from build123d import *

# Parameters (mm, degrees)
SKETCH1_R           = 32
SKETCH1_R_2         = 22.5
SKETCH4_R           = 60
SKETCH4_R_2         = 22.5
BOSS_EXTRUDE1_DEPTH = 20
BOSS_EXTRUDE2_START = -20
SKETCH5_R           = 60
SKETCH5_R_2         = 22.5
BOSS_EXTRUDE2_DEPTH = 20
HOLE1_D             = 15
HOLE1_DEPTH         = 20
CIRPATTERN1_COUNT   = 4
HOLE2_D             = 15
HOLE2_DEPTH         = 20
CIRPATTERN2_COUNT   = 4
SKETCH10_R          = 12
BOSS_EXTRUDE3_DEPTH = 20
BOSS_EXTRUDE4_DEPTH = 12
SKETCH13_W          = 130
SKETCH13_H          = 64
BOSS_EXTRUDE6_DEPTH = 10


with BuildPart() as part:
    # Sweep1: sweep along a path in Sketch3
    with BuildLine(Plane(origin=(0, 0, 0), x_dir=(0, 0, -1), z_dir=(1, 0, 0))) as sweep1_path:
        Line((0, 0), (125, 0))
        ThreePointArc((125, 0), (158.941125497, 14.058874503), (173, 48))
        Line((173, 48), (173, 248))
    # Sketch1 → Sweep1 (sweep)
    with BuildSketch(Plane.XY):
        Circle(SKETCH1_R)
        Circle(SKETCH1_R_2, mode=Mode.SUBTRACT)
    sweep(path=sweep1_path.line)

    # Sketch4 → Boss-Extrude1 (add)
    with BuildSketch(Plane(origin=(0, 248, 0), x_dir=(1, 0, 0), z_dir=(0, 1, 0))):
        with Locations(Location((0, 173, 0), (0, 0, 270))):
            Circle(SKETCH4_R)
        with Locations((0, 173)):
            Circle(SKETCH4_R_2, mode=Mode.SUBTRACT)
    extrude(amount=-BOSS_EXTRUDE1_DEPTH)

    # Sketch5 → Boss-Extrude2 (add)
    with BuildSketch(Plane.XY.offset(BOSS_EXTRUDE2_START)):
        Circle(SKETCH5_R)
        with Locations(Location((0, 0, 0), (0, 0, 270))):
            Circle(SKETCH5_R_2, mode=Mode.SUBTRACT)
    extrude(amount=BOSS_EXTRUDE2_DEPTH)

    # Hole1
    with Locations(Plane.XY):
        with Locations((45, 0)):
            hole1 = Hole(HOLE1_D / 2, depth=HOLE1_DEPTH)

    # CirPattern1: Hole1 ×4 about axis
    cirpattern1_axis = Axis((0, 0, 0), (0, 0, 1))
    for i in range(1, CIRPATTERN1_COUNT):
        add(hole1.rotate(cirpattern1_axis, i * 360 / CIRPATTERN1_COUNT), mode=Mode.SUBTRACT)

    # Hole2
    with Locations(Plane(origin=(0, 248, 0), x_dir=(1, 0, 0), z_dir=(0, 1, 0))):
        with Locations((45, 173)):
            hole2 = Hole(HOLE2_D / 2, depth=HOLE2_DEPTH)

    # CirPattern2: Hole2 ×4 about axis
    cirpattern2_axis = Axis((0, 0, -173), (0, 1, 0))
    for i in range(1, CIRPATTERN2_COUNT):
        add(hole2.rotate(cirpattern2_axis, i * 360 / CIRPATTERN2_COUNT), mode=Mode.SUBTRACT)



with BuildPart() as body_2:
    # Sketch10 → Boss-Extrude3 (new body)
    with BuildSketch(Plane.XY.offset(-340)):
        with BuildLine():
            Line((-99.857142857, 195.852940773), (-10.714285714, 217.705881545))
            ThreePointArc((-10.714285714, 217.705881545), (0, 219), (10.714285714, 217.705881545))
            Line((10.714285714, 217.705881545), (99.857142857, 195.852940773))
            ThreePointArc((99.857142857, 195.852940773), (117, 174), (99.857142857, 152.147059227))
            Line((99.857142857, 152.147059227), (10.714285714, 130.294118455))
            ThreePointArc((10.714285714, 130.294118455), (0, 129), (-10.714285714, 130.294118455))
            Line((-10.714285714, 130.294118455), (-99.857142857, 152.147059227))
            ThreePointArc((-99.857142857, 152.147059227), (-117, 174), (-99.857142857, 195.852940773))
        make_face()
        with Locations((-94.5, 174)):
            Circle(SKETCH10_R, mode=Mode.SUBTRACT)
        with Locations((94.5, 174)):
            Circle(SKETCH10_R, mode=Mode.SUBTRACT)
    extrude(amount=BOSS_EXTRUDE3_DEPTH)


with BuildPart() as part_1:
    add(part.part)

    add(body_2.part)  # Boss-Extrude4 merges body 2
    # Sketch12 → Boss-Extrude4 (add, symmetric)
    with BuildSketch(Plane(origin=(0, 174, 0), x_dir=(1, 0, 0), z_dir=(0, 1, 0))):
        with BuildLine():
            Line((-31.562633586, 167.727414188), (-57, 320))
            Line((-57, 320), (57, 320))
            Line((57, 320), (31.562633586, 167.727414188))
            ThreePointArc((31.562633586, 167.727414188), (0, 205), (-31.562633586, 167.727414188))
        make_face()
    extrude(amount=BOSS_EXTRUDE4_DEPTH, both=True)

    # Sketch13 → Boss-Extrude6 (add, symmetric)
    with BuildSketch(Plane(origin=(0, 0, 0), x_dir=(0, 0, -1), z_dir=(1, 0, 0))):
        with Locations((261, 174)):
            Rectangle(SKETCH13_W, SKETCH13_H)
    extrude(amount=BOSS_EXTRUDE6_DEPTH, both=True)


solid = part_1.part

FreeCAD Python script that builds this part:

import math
import FreeCAD as App
import Part
import Sketcher

V = App.Vector
Q = App.Units.Quantity


def add_polygon(sketch, points):
    """Adds a closed chain of lines whose ends are joined by coincident constraints."""
    first, n = sketch.GeometryCount, len(points)
    for a, b in zip(points, points[1:] + points[:1]):
        sketch.addGeometry(Part.LineSegment(App.Vector(*a, 0), App.Vector(*b, 0)), False)
    for i in range(n):
        sketch.addConstraint(Sketcher.Constraint("Coincident", first + i, 2, first + (i + 1) % n, 1))

doc = App.newDocument("Part")
body = doc.addObject("PartDesign::Body", "Body")

# Sketch on XY plane
sketch1 = body.newObject("Sketcher::SketchObject", "Sketch")
sketch1.AttachmentSupport = (doc.getObject("XY_Plane"), [""])
sketch1.MapMode = "FlatFace"
sketch1.addGeometry([
    Part.Circle(V(0, 0, 0), V(0, 0, 1), 32),
    Part.Circle(V(0, 0, 0), V(0, 0, 1), 22),
], False)
sketch1.addConstraint([
    Sketcher.Constraint("Coincident", 0, 3, -1, 1),
    Sketcher.Constraint("Coincident", 1, 3, -1, 1),
    Sketcher.Constraint("Diameter", 0, Q("64 mm")),
    Sketcher.Constraint("Diameter", 1, Q("45 mm")),
])

# Sketch on YZ plane
sketch2 = body.newObject("Sketcher::SketchObject", "Sketch001")
sketch2.AttachmentSupport = (doc.getObject("YZ_Plane"), [""])
sketch2.MapMode = "FlatFace"
sketch2.addGeometry([
    Part.LineSegment(V(0, 0, 0), V(0, -125, 0)),
    Part.ArcOfCircle(Part.Circle(V(48, -125, 0), V(0, 0, 1), 48), math.radians(180), math.radians(270)),
    Part.LineSegment(V(48, -173, 0), V(248, -173, 0)),
], False)
sketch2.addConstraint([
    Sketcher.Constraint("Tangent", 0, 2, 1, 1),
    Sketcher.Constraint("Tangent", 1, 2, 2, 1),
    Sketcher.Constraint("Vertical", 0),
    Sketcher.Constraint("Horizontal", 2),
    Sketcher.Constraint("Coincident", 0, 1, -1, 1),
    Sketcher.Constraint("Radius", 1, Q("48 mm")),
    Sketcher.Constraint("DistanceX", 2, 1, 2, 2, Q("200 mm")),
    Sketcher.Constraint("DistanceY", 0, 2, 0, 1, Q("125 mm")),
])
doc.recompute()

additivepipe = body.newObject("PartDesign::AdditivePipe", "AdditivePipe")
additivepipe.Profile = sketch1
additivepipe.Spine = (sketch2, ["Edge1", "Edge2", "Edge3"])

# Sketch on XZ plane
sketch3 = body.newObject("Sketcher::SketchObject", "Sketch002")
sketch3.AttachmentSupport = (doc.getObject("XZ_Plane"), [""])
sketch3.MapMode = "FlatFace"
sketch3.AttachmentOffset = App.Placement(V(0, 0, -248), App.Rotation())
sketch3.addGeometry([
    Part.Circle(V(0, -173, 0), V(0, 0, 1), 60),
    Part.Circle(V(0, -173, 0), V(0, 0, 1), 22),
], False)
sketch3.addConstraint([
    Sketcher.Constraint("Coincident", 1, 3, 0, 3),
    Sketcher.Constraint("PointOnObject", 0, 3, -2),
    Sketcher.Constraint("Diameter", 0, Q("120 mm")),
    Sketcher.Constraint("Diameter", 1, Q("45 mm")),
    Sketcher.Constraint("DistanceY", 0, 3, -1, 1, Q("173 mm")),
])
pad1 = body.newObject("PartDesign::Pad", "Pad")
pad1.Profile = sketch3
pad1.Length = 20

# Sketch on XY plane
sketch4 = body.newObject("Sketcher::SketchObject", "Sketch003")
sketch4.AttachmentSupport = (doc.getObject("XY_Plane"), [""])
sketch4.MapMode = "FlatFace"
sketch4.AttachmentOffset = App.Placement(V(0, 0, -20), App.Rotation())
sketch4.addGeometry([
    Part.Circle(V(0, 0, 0), V(0, 0, 1), 60),
    Part.Circle(V(0, 0, 0), V(0, 0, 1), 22),
], False)
sketch4.addConstraint([
    Sketcher.Constraint("Coincident", 0, 3, -1, 1),
    Sketcher.Constraint("Coincident", 1, 3, -1, 1),
    Sketcher.Constraint("Diameter", 0, Q("120 mm")),
    Sketcher.Constraint("Diameter", 1, Q("45 mm")),
])
pad2 = body.newObject("PartDesign::Pad", "Pad001")
pad2.Profile = sketch4
pad2.Length = 20

# Sketch on XY plane
sketch5 = body.newObject("Sketcher::SketchObject", "Sketch004")
sketch5.AttachmentSupport = (doc.getObject("XY_Plane"), [""])
sketch5.MapMode = "FlatFace"
sketch5.addGeometry(Part.Circle(V(45, 0, 0), V(0, 0, 1), 8), False)
sketch5.addConstraint([
    Sketcher.Constraint("PointOnObject", 0, 3, -1),
    Sketcher.Constraint("Diameter", 0, Q("15 mm")),
    Sketcher.Constraint("DistanceX", -1, 1, 0, 3, Q("45 mm")),
])
doc.recompute()
hole = body.newObject("PartDesign::Hole", "Hole")
hole.Profile = sketch5
hole.ThreadType = "None"
hole.Diameter = 15
hole.DepthType = "Dimension"
hole.Depth = 20
hole.DrillPoint = "Flat"
doc.recompute()

polarpattern = body.newObject("PartDesign::PolarPattern", "PolarPattern")
polarpattern.Originals = [hole]
polarpattern.Axis = (doc.getObject("Z_Axis"), [""])
polarpattern.Angle = 360
polarpattern.Occurrences = 4
body.Tip = polarpattern

# Sketch on XZ plane
sketch6 = body.newObject("Sketcher::SketchObject", "Sketch005")
sketch6.AttachmentSupport = (doc.getObject("XZ_Plane"), [""])
sketch6.MapMode = "FlatFace"
sketch6.AttachmentOffset = App.Placement(V(0, 0, -248), App.Rotation())
sketch6.addGeometry(Part.Circle(V(45, -173, 0), V(0, 0, 1), 8), False)
sketch6.addConstraint([
    Sketcher.Constraint("Diameter", 0, Q("15 mm")),
    Sketcher.Constraint("DistanceX", -1, 1, 0, 3, Q("45 mm")),
    Sketcher.Constraint("DistanceY", 0, 3, -1, 1, Q("173 mm")),
])
doc.recompute()
hole2 = body.newObject("PartDesign::Hole", "Hole001")
hole2.Profile = sketch6
hole2.ThreadType = "None"
hole2.Diameter = 15
hole2.DepthType = "Dimension"
hole2.Depth = 20
hole2.DrillPoint = "Flat"
hole2.Reversed = True
doc.recompute()

datumline = body.newObject("PartDesign::Line", "DatumLine")
datumline.Placement = App.Placement(V(0, 0, -173), App.Rotation(V(0, 0, 1), V(0, 1, 0)))
polarpattern2 = body.newObject("PartDesign::PolarPattern", "PolarPattern001")
polarpattern2.Originals = [hole2]
polarpattern2.Axis = (datumline, [""])
polarpattern2.Angle = 360
polarpattern2.Occurrences = 4
body.Tip = polarpattern2
body2 = doc.addObject("PartDesign::Body", "Body001")

# Sketch on XY plane
sketch7 = body2.newObject("Sketcher::SketchObject", "Sketch006")
sketch7.AttachmentSupport = (doc.getObject("XY_Plane001"), [""])
sketch7.MapMode = "FlatFace"
sketch7.AttachmentOffset = App.Placement(V(0, 0, -340), App.Rotation())
sketch7.addGeometry([
    Part.LineSegment(V(-11, 218, 0), V(-100, 196, 0)),  # 0
    Part.ArcOfCircle(Part.Circle(V(-94, 174, 0), V(0, 0, 1), 23), math.radians(104), math.radians(256)),  # 1
    Part.LineSegment(V(-100, 152, 0), V(-11, 130, 0)),  # 2
    Part.ArcOfCircle(Part.Circle(V(0, 174, 0), V(0, 0, 1), 45), math.radians(-104), math.radians(-76)),  # 3
    Part.LineSegment(V(11, 130, 0), V(100, 152, 0)),  # 4
    Part.ArcOfCircle(Part.Circle(V(94, 174, 0), V(0, 0, 1), 23), math.radians(-76), math.radians(76)),  # 5
    Part.LineSegment(V(100, 196, 0), V(11, 218, 0)),  # 6
    Part.ArcOfCircle(Part.Circle(V(0, 174, 0), V(0, 0, 1), 45), math.radians(76), math.radians(104)),  # 7
    Part.Circle(V(94, 174, 0), V(0, 0, 1), 12),  # 8
    Part.Circle(V(-94, 174, 0), V(0, 0, 1), 12),  # 9
], False)
sketch7.addConstraint([
    Sketcher.Constraint("Tangent", 0, 2, 1, 1),
    Sketcher.Constraint("Tangent", 1, 2, 2, 1),
    Sketcher.Constraint("Tangent", 2, 2, 3, 1),
    Sketcher.Constraint("Tangent", 3, 2, 4, 1),
    Sketcher.Constraint("Tangent", 4, 2, 5, 1),
    Sketcher.Constraint("Tangent", 5, 2, 6, 1),
    Sketcher.Constraint("Tangent", 6, 2, 7, 1),
    Sketcher.Constraint("Tangent", 7, 2, 0, 1),
    Sketcher.Constraint("Coincident", 7, 3, 3, 3),
    Sketcher.Constraint("Coincident", 8, 3, 5, 3),
    Sketcher.Constraint("Coincident", 9, 3, 1, 3),
    Sketcher.Constraint("Equal", 1, 5),
    Sketcher.Constraint("Equal", 3, 7),
    Sketcher.Constraint("Equal", 8, 9),
    Sketcher.Constraint("Symmetric", 1, 3, 5, 3, -2),
    Sketcher.Constraint("PointOnObject", 3, 3, -2),
    Sketcher.Constraint("Parallel", 0, 4),
    Sketcher.Constraint("Diameter", 8, Q("24 mm")),
    Sketcher.Constraint("Radius", 3, Q("45 mm")),
    Sketcher.Constraint("Radius", 1, Q("22.5 mm")),
    Sketcher.Constraint("DistanceY", -1, 1, 1, 3, Q("174 mm")),
    Sketcher.Constraint("DistanceX", 1, 3, 5, 3, Q("189 mm")),
])
pad3 = body2.newObject("PartDesign::Pad", "Pad002")
pad3.Profile = sketch7
pad3.Length = 20
body.AllowCompound = True
doc.recompute()

boolean = body.newObject("PartDesign::Boolean", "Boolean")
boolean.Type = "Fuse"
boolean.addObjects([body2])

# Sketch on XZ plane
sketch8 = body.newObject("Sketcher::SketchObject", "Sketch007")
sketch8.AttachmentSupport = (doc.getObject("XZ_Plane"), [""])
sketch8.MapMode = "FlatFace"
sketch8.AttachmentOffset = App.Placement(V(0, 0, -174), App.Rotation())
sketch8.addGeometry([
    Part.LineSegment(V(-57, -320, 0), V(-32, -168, 0)),
    Part.ArcOfCircle(Part.Circle(V(0, -173, 0), V(0, 0, 1), 32), math.radians(171), math.radians(369)),
    Part.LineSegment(V(32, -168, 0), V(57, -320, 0)),
    Part.LineSegment(V(57, -320, 0), V(-57, -320, 0)),
], False)
sketch8.addConstraint([
    Sketcher.Constraint("Tangent", 0, 2, 1, 1),
    Sketcher.Constraint("Tangent", 1, 2, 2, 1),
    Sketcher.Constraint("Coincident", 2, 2, 3, 1),
    Sketcher.Constraint("Coincident", 3, 2, 0, 1),
    Sketcher.Constraint("Horizontal", 3),
    Sketcher.Constraint("Symmetric", 0, 2, 1, 2, -2),
    Sketcher.Constraint("Radius", 1, Q("32 mm")),
    Sketcher.Constraint("DistanceX", 3, 2, 3, 1, Q("114 mm")),
    Sketcher.Constraint("DistanceY", 1, 3, -1, 1, Q("173 mm")),
    Sketcher.Constraint("DistanceY", 2, 2, -1, 1, Q("320 mm")),
])
pad4 = body.newObject("PartDesign::Pad", "Pad003")
pad4.Profile = sketch8
pad4.Length = 24
pad4.Midplane = True

# Sketch on YZ plane
sketch9 = body.newObject("Sketcher::SketchObject", "Sketch008")
sketch9.AttachmentSupport = (doc.getObject("YZ_Plane"), [""])
sketch9.MapMode = "FlatFace"
add_polygon(sketch9, [(206, -196), (142, -196), (142, -326), (206, -326)])  # lines 0-3
sketch9.addConstraint([
    Sketcher.Constraint("Horizontal", 0),
    Sketcher.Constraint("Vertical", 1),
    Sketcher.Constraint("Horizontal", 2),
    Sketcher.Constraint("Vertical", 3),
    Sketcher.Constraint("DistanceX", 0, 2, 0, 1, Q("64 mm")),
    Sketcher.Constraint("DistanceY", 1, 2, 1, 1, Q("130 mm")),
    Sketcher.Constraint("DistanceX", -1, 1, 0, 2, Q("142 mm")),
    Sketcher.Constraint("DistanceY", 0, 2, -1, 1, Q("196 mm")),
])
pad5 = body.newObject("PartDesign::Pad", "Pad004")
pad5.Profile = sketch9
pad5.Length = 20
pad5.Midplane = True

doc.recompute()
